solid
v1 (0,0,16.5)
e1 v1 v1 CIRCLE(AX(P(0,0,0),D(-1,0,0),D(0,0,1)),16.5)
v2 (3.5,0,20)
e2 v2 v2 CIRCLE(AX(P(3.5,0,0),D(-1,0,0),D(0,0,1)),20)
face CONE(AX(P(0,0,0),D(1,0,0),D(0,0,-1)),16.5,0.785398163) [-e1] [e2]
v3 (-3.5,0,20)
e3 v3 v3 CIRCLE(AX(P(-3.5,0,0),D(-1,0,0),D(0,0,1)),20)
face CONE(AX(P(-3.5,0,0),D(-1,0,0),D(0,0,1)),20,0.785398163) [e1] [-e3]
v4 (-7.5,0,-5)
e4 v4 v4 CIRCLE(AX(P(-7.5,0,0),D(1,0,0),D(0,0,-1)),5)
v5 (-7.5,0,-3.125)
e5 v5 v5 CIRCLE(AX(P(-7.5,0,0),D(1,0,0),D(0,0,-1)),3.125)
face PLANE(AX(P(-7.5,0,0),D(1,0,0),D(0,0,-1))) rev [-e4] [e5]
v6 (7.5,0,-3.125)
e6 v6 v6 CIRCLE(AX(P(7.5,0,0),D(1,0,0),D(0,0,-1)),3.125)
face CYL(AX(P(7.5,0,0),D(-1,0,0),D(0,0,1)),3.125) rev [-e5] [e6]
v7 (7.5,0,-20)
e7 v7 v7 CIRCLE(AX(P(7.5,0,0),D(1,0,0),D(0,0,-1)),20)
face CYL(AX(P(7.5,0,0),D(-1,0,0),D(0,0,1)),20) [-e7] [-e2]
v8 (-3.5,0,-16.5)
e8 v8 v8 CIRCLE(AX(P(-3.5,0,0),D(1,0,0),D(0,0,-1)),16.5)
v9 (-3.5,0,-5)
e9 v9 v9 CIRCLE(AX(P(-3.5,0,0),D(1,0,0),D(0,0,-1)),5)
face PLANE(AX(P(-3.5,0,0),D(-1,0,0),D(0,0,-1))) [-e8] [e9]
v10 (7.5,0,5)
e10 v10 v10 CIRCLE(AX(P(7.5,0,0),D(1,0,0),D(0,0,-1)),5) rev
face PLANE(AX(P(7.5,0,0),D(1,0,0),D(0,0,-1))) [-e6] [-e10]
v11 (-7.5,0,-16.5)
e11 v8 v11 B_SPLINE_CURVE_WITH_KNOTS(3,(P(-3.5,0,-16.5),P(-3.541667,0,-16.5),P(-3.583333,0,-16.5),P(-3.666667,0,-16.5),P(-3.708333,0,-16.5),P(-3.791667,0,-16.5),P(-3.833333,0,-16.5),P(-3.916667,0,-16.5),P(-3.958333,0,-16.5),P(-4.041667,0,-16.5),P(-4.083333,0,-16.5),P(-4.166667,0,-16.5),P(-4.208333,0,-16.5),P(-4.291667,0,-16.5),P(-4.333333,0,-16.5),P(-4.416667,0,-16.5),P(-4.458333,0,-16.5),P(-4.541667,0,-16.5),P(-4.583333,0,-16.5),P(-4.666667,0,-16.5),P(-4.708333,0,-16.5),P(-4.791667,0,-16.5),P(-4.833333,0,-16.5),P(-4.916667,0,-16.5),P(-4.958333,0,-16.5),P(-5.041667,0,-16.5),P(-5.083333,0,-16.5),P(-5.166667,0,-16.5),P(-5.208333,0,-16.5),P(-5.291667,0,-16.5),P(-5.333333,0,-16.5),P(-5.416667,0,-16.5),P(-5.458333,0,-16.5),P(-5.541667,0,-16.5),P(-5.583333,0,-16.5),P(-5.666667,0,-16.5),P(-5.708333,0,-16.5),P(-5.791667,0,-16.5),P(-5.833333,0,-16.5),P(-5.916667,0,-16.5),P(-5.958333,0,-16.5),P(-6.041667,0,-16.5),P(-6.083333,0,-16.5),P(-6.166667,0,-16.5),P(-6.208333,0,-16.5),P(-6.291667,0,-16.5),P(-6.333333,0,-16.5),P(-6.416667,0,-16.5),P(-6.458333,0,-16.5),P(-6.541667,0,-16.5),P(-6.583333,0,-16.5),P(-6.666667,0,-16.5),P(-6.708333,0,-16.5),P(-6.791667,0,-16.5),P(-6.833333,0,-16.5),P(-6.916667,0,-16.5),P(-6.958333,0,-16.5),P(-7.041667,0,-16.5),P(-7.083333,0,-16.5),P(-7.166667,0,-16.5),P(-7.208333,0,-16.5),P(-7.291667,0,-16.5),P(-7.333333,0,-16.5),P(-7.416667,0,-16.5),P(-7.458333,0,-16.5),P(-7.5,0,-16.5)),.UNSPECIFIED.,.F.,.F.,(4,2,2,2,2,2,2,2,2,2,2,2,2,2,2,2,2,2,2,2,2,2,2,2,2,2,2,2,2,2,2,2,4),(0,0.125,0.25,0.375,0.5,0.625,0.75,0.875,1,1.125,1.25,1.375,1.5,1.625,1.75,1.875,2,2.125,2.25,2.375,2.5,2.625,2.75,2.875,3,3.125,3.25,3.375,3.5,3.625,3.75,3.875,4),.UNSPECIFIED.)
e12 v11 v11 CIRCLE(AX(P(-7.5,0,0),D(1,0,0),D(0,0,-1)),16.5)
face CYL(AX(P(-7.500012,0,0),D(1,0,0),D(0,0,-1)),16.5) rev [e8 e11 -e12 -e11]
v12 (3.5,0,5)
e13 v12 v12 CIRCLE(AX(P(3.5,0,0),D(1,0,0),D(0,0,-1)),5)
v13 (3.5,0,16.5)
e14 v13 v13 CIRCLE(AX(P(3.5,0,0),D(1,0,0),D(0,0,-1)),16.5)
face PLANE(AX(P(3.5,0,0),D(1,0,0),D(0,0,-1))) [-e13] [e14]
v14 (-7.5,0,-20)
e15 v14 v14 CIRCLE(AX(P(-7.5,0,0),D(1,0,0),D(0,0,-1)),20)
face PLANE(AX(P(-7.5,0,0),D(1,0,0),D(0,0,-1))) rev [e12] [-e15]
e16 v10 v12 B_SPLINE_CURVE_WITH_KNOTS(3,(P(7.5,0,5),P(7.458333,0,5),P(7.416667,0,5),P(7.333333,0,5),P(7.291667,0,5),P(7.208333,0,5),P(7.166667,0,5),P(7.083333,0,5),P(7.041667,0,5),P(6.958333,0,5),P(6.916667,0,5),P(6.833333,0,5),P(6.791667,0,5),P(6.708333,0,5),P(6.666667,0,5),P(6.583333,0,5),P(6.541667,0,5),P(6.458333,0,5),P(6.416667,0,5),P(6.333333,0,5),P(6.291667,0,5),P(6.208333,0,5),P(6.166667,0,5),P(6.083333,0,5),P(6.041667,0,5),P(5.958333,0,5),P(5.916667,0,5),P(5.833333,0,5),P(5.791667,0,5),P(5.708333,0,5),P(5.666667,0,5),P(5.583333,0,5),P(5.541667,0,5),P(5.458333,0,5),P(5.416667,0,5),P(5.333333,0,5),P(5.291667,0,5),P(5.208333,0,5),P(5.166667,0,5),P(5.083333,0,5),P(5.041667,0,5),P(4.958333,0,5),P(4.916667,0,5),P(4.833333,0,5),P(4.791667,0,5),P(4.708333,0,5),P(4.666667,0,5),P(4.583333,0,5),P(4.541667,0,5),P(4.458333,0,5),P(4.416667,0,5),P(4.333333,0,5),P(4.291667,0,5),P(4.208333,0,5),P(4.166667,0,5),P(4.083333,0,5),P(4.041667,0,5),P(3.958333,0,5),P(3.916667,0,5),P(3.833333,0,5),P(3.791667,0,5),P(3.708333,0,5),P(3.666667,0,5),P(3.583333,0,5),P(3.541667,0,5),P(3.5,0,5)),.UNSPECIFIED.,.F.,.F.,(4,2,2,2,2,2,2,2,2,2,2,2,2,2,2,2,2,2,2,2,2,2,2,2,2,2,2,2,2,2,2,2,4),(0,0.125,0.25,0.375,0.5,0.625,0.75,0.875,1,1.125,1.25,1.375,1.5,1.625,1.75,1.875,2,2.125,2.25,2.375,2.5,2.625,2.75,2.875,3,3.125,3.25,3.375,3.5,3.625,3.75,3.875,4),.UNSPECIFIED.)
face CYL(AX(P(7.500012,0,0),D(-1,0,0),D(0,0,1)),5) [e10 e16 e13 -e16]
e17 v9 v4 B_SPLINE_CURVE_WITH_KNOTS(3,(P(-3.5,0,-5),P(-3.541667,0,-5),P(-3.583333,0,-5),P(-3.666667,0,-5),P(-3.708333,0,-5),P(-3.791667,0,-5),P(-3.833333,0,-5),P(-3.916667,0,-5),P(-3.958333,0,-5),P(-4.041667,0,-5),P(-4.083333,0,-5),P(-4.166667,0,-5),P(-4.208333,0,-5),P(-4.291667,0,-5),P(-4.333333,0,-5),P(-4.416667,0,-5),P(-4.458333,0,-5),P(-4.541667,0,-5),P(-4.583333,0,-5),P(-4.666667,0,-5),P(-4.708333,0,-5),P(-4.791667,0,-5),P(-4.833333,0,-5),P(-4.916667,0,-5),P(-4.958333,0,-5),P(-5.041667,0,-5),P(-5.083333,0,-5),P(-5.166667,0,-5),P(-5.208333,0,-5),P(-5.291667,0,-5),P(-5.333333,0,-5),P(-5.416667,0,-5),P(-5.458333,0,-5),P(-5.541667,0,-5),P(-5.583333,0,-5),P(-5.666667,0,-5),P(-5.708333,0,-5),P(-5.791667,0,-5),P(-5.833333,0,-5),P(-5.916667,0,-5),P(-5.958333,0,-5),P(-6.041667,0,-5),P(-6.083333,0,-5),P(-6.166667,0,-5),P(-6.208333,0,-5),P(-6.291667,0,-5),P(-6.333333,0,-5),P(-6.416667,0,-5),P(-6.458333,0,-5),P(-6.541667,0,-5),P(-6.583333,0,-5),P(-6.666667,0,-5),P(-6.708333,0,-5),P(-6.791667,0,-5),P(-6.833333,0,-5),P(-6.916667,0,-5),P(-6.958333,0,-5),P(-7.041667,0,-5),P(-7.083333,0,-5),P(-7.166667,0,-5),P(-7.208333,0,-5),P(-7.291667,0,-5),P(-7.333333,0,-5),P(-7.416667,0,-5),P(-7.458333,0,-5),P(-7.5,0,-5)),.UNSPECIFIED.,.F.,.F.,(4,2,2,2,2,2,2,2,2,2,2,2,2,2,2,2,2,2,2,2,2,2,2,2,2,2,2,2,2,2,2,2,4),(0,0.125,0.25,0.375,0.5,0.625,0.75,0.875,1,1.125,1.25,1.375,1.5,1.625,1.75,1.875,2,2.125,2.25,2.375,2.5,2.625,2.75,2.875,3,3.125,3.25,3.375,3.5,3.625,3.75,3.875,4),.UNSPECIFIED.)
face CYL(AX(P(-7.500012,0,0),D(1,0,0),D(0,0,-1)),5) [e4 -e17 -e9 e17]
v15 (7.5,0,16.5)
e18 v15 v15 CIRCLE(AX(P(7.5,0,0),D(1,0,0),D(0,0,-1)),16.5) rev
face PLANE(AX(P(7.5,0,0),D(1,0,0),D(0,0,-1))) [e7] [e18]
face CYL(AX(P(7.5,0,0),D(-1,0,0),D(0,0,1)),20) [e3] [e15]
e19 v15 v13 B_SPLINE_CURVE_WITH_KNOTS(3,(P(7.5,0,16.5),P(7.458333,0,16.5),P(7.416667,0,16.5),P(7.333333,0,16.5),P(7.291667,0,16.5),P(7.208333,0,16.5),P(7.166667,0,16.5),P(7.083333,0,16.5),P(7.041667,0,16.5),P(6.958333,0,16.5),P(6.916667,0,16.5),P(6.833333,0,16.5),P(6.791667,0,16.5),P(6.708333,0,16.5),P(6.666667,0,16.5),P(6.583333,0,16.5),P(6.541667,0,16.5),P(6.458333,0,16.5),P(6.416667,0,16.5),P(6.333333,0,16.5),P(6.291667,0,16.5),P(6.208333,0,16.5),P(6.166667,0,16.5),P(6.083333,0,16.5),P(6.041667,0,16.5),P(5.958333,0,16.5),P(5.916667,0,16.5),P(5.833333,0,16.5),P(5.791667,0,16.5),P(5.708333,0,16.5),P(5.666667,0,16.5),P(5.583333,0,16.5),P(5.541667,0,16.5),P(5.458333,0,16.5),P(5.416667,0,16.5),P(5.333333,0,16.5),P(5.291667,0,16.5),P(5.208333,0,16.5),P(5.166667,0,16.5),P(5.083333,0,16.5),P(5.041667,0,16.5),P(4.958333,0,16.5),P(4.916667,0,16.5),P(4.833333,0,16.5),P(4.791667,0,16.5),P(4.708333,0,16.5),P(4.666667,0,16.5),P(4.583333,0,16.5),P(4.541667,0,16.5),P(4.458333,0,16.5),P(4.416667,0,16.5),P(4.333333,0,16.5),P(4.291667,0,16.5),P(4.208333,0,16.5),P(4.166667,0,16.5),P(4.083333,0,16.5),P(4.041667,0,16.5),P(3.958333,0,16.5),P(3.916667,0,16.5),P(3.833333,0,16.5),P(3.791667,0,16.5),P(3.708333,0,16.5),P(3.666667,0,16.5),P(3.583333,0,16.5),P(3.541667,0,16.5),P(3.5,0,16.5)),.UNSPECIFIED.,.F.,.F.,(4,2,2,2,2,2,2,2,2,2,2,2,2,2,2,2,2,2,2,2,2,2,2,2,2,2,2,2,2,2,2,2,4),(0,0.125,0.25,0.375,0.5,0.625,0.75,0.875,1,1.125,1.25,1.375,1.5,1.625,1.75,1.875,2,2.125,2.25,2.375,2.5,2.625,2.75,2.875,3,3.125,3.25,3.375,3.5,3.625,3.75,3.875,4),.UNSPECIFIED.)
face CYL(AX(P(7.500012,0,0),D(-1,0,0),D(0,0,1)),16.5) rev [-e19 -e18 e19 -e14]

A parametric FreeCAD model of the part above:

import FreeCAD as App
import Part
import Sketcher
from FreeCAD import Vector
Q = App.Units.Quantity


def add_polygon(sketch, points):
    """Adds a closed chain of lines whose ends are joined by coincident constraints."""
    first, n = sketch.GeometryCount, len(points)
    for a, b in zip(points, points[1:] + points[:1]):
        sketch.addGeometry(Part.LineSegment(App.Vector(*a, 0), App.Vector(*b, 0)), False)
    for i in range(n):
        sketch.addConstraint(Sketcher.Constraint("Coincident", first + i, 2, first + (i + 1) % n, 1))

doc = App.newDocument("Part")
body = doc.addObject("PartDesign::Body", "Body")

sketch1 = body.newObject("Sketcher::SketchObject", "Sketch")
sketch1.AttachmentSupport = (doc.getObject("YZ_Plane"), [""])
sketch1.MapMode = "FlatFace"
sketch1.addGeometry(Part.Circle(Vector(0, 0, 0), Vector(0, 0, 1), 20), False)
sketch1.addGeometry(Part.Circle(Vector(0, 0, 0), Vector(0, 0, 1), 3.125), False)
sketch1.addConstraint(Sketcher.Constraint("Coincident", 0, 3, -1, 1))
sketch1.addConstraint(Sketcher.Constraint("Coincident", 1, 3, -1, 1))
sketch1.addConstraint(Sketcher.Constraint("Diameter", 0, Q("40 mm")))
sketch1.addConstraint(Sketcher.Constraint("Diameter", 1, Q("6.25 mm")))
pad1 = body.newObject("PartDesign::Pad", "Pad")
pad1.Profile = sketch1
pad1.Length = 15
pad1.Midplane = True

sketch2 = body.newObject("Sketcher::SketchObject", "Sketch001")
sketch2.AttachmentSupport = (doc.getObject("YZ_Plane"), [""])
sketch2.MapMode = "FlatFace"
sketch2.AttachmentOffset = App.Placement(Vector(0, 0, 3.5), App.Rotation())
sketch2.addGeometry(Part.Circle(Vector(0, 0, 0), Vector(0, 0, 1), 16.5), False)
sketch2.addGeometry(Part.Circle(Vector(0, 0, 0), Vector(0, 0, 1), 5), False)
sketch2.addConstraint(Sketcher.Constraint("Coincident", 0, 3, -1, 1))
sketch2.addConstraint(Sketcher.Constraint("Coincident", 1, 3, -1, 1))
sketch2.addConstraint(Sketcher.Constraint("Diameter", 0, Q("33 mm")))
sketch2.addConstraint(Sketcher.Constraint("Diameter", 1, Q("10 mm")))
pocket1 = body.newObject("PartDesign::Pocket", "Pocket")
pocket1.Profile = sketch2
pocket1.Length = 37.015621
pocket1.Reversed = True
doc.recompute()

mirrored = body.newObject("PartDesign::Mirrored", "Mirrored")
mirrored.Originals = [pocket1]
mirrored.MirrorPlane = (doc.getObject("YZ_Plane"), [""])
body.Tip = mirrored

sketch3 = body.newObject("Sketcher::SketchObject", "Sketch002")
sketch3.AttachmentSupport = (doc.getObject("XY_Plane"), [""])
sketch3.MapMode = "FlatFace"
add_polygon(sketch3, [(-3.5, 20), (0, 16.5), (3.5, 20)])
sketch3.addConstraint(Sketcher.Constraint("Horizontal", 2))
sketch3.addConstraint(Sketcher.Constraint("PointOnObject", 0, 2, -2))
sketch3.addConstraint(Sketcher.Constraint("Perpendicular", 0, 1))
sketch3.addConstraint(Sketcher.Constraint("Equal", 0, 1))
sketch3.addConstraint(Sketcher.Constraint("DistanceX", 2, 2, 2, 1, Q("7 mm")))
sketch3.addConstraint(Sketcher.Constraint("DistanceY", -1, 1, 1, 2, Q("20 mm")))
groove = body.newObject("PartDesign::Groove", "Groove")
groove.Profile = sketch3
groove.ReferenceAxis = (sketch3, ["H_Axis"])
groove.Angle = 360

doc.recompute()
